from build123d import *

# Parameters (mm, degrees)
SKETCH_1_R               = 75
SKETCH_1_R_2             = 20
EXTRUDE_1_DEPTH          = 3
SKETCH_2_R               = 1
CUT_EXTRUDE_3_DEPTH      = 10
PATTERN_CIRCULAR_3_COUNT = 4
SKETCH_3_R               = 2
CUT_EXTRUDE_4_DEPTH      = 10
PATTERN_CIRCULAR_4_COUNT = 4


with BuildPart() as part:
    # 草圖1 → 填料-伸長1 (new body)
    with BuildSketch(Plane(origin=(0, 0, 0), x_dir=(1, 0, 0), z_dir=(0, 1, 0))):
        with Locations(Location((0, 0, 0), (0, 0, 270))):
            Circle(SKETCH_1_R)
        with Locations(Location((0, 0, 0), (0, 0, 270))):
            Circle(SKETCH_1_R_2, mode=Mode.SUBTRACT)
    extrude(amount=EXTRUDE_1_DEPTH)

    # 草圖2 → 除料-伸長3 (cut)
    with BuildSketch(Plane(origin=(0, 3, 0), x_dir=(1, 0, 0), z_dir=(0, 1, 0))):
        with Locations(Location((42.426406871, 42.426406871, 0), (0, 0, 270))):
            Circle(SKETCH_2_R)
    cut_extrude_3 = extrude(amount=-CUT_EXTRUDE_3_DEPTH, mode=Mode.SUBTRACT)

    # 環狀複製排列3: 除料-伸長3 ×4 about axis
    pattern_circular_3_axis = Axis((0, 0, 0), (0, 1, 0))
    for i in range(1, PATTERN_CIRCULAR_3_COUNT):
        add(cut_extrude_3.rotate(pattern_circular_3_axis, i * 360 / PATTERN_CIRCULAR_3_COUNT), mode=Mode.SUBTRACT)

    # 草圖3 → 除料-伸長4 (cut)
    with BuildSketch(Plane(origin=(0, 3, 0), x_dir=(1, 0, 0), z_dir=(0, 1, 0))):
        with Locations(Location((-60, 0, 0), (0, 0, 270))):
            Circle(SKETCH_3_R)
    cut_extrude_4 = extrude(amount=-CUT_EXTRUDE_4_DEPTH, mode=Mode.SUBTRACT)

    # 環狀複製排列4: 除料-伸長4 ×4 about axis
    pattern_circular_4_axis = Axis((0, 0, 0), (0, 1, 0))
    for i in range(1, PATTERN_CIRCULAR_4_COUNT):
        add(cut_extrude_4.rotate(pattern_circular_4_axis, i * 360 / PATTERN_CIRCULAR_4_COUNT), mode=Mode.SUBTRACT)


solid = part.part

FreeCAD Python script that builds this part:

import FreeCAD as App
import Part
import Sketcher

V = App.Vector

doc = App.newDocument("Part")
body = doc.addObject("PartDesign::Body", "Body")

sketch1 = doc.addObject("Sketcher::SketchObject", "Sketch")
body.addObject(sketch1)
sketch1.AttachmentSupport = (doc.XZ_Plane, [""])
sketch1.MapMode = "FlatFace"
sketch1.addGeometry(Part.Circle(V(0, 0, 0), V(0, 0, 1), 75), False)
sketch1.addGeometry(Part.Circle(V(0, 0, 0), V(0, 0, 1), 20), False)
sketch1.addConstraint(Sketcher.Constraint("Coincident", 0, 3, -1, 1))
sketch1.addConstraint(Sketcher.Constraint("Coincident", 1, 3, -1, 1))
sketch1.addConstraint(Sketcher.Constraint("Diameter", 0, 150.0))
sketch1.addConstraint(Sketcher.Constraint("Diameter", 1, 40.0))
pad1 = doc.addObject("PartDesign::Pad", "Pad")
body.addObject(pad1)
pad1.Profile = sketch1
pad1.Length = 3
pad1.Reversed = True

sketch2 = doc.addObject("Sketcher::SketchObject", "Sketch001")
body.addObject(sketch2)
sketch2.AttachmentSupport = (doc.XZ_Plane, [""])
sketch2.MapMode = "FlatFace"
sketch2.AttachmentOffset = App.Placement(V(0, 0, -3), App.Rotation())
sketch2.addGeometry(Part.Circle(V(42.4, -42.4, 0), V(0, 0, 1), 1), False)
sketch2.addConstraint(Sketcher.Constraint("Diameter", 0, 2.0))
sketch2.addConstraint(Sketcher.Constraint("DistanceX", -1, 1, 0, 3, 42.426407))
sketch2.addConstraint(Sketcher.Constraint("DistanceY", 0, 3, -1, 1, 42.426407))
pocket1 = doc.addObject("PartDesign::Pocket", "Pocket")
body.addObject(pocket1)
pocket1.Profile = sketch2
pocket1.Length = 10
pocket1.Reversed = True
doc.recompute()

polarpattern = doc.addObject("PartDesign::PolarPattern", "PolarPattern")
body.addObject(polarpattern)
polarpattern.Originals = [pocket1]
polarpattern.Axis = (doc.Y_Axis, [""])
polarpattern.Angle = 360
polarpattern.Occurrences = 4
body.Tip = polarpattern

sketch3 = doc.addObject("Sketcher::SketchObject", "Sketch002")
body.addObject(sketch3)
sketch3.AttachmentSupport = (doc.XZ_Plane, [""])
sketch3.MapMode = "FlatFace"
sketch3.AttachmentOffset = App.Placement(V(0, 0, -3), App.Rotation())
sketch3.addGeometry(Part.Circle(V(-60, 0, 0), V(0, 0, 1), 2), False)
sketch3.addConstraint(Sketcher.Constraint("PointOnObject", 0, 3, -1))
sketch3.addConstraint(Sketcher.Constraint("Diameter", 0, 4.0))
sketch3.addConstraint(Sketcher.Constraint("DistanceX", 0, 3, -1, 1, 60.0))
pocket2 = doc.addObject("PartDesign::Pocket", "Pocket001")
body.addObject(pocket2)
pocket2.Profile = sketch3
pocket2.Length = 10
pocket2.Reversed = True
doc.recompute()

polarpattern2 = doc.addObject("PartDesign::PolarPattern", "PolarPattern001")
body.addObject(polarpattern2)
polarpattern2.Originals = [pocket2]
polarpattern2.Axis = (doc.Y_Axis, [""])
polarpattern2.Angle = 360
polarpattern2.Occurrences = 4
body.Tip = polarpattern2

doc.recompute()
